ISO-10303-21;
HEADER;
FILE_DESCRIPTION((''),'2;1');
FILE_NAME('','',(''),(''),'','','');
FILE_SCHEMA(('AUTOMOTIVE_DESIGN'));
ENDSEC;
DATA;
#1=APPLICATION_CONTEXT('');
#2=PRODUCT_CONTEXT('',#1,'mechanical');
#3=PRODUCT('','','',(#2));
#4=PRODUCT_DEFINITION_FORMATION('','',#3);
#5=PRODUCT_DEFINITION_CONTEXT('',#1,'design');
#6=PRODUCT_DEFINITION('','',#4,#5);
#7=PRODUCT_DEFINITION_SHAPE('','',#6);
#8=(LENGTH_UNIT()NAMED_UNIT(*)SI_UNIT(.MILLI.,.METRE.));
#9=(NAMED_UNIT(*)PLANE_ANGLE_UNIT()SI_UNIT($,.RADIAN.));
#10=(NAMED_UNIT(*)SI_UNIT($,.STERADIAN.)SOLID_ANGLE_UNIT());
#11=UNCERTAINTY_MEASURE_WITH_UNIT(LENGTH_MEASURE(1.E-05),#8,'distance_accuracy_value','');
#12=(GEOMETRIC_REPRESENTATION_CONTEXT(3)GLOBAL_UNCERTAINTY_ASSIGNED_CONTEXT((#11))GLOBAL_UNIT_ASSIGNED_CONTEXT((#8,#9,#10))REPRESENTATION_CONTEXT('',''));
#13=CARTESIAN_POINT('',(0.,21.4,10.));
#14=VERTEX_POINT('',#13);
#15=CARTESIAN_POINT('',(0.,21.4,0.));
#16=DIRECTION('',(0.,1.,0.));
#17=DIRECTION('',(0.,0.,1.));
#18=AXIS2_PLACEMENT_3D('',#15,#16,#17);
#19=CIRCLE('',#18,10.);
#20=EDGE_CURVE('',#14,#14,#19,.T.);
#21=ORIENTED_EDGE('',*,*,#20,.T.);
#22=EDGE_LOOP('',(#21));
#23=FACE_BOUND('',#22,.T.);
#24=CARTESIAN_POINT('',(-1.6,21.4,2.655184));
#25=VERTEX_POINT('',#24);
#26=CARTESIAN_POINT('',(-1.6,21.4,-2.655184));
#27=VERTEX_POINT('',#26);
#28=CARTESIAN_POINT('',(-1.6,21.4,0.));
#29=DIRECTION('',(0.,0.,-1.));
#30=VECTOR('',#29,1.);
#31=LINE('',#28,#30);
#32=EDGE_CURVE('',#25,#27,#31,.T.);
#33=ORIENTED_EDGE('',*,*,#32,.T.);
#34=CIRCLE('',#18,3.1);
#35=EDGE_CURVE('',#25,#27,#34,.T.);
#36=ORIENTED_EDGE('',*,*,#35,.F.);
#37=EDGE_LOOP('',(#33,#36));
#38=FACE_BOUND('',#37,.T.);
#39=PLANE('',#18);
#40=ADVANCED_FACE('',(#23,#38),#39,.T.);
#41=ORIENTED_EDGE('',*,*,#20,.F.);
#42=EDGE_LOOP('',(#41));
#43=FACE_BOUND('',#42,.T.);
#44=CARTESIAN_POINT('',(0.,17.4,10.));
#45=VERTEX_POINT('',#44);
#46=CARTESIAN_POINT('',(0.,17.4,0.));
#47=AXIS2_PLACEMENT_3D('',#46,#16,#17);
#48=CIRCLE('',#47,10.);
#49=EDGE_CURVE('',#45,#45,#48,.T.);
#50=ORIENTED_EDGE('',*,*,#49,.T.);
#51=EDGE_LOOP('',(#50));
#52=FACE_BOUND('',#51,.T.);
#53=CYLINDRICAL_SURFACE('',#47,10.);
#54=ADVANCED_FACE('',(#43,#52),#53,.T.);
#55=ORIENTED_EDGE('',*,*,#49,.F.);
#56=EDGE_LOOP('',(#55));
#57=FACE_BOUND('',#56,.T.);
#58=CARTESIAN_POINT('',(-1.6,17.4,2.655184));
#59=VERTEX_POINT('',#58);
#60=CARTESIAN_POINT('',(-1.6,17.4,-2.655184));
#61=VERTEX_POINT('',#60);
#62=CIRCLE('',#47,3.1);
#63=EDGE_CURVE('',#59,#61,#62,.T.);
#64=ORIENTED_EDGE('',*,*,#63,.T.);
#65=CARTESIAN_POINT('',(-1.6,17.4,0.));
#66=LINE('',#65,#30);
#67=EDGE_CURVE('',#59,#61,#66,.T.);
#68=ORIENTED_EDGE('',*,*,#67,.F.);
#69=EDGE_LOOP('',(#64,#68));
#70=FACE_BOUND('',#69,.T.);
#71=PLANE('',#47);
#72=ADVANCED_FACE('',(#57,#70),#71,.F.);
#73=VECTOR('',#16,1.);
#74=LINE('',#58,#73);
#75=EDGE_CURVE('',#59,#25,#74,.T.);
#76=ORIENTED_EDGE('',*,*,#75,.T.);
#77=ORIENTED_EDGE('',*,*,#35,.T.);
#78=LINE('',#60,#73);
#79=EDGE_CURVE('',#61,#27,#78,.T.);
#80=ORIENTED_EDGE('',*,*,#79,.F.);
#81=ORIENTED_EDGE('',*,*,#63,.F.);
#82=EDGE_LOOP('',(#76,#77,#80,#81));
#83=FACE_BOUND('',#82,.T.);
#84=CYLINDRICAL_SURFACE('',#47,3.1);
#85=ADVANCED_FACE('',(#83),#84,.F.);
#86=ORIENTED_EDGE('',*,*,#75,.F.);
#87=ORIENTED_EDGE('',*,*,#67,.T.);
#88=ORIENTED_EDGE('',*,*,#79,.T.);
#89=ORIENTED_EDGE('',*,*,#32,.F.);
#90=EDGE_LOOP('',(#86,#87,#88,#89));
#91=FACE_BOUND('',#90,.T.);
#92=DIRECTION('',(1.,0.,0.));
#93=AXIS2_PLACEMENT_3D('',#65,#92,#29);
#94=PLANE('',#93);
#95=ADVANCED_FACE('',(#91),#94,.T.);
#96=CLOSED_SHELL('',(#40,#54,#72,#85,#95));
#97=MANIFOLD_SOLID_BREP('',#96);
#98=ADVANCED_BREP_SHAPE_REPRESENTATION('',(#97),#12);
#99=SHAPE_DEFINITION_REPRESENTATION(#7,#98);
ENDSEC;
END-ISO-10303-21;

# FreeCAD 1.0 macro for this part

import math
import FreeCAD as App
import Part
import Sketcher
from FreeCAD import Vector
Q = App.Units.Quantity

doc = App.newDocument("Part")
body = doc.addObject("PartDesign::Body", "Body")

sketch1 = body.newObject("Sketcher::SketchObject", "Sketch")
sketch1.AttachmentSupport = (doc.getObject("XZ_Plane"), [""])
sketch1.MapMode = "FlatFace"
sketch1.AttachmentOffset = App.Placement(Vector(0, 0, -17.4), App.Rotation())
sketch1.addGeometry(Part.Circle(Vector(0, 0, 0), Vector(0, 0, 1), 10), False)
sketch1.addGeometry(Part.ArcOfCircle(Part.Circle(Vector(0, 0, 0), Vector(0, 0, 1), 3.1), math.radians(90), math.radians(121.072951)), False)
sketch1.addGeometry(Part.LineSegment(Vector(-1.6, 2.655184, 0), Vector(-1.6, -2.655184, 0)), False)
sketch1.addGeometry(Part.ArcOfCircle(Part.Circle(Vector(0, 0, 0), Vector(0, 0, 1), 3.1), math.radians(-121.072951), math.radians(-90)), False)
sketch1.addGeometry(Part.ArcOfCircle(Part.Circle(Vector(0, 0, 0), Vector(0, 0, 1), 3.1), math.radians(-90), math.radians(90)), False)
sketch1.addConstraint(Sketcher.Constraint("Coincident", 1, 2, 2, 1))
sketch1.addConstraint(Sketcher.Constraint("Coincident", 2, 2, 3, 1))
sketch1.addConstraint(Sketcher.Constraint("Tangent", 3, 2, 4, 1))
sketch1.addConstraint(Sketcher.Constraint("Tangent", 4, 2, 1, 1))
sketch1.addConstraint(Sketcher.Constraint("Vertical", 2))
sketch1.addConstraint(Sketcher.Constraint("Coincident", 0, 3, -1, 1))
sketch1.addConstraint(Sketcher.Constraint("Coincident", 1, 3, -1, 1))
sketch1.addConstraint(Sketcher.Constraint("Equal", 1, 3))
sketch1.addConstraint(Sketcher.Constraint("Equal", 3, 4))
sketch1.addConstraint(Sketcher.Constraint("PointOnObject", 3, 2, -2))
sketch1.addConstraint(Sketcher.Constraint("PointOnObject", 4, 2, -2))
sketch1.addConstraint(Sketcher.Constraint("Diameter", 0, Q("20 mm")))
sketch1.addConstraint(Sketcher.Constraint("Radius", 1, Q("3.1 mm")))
sketch1.addConstraint(Sketcher.Constraint("DistanceX", 1, 2, -1, 1, Q("1.6 mm")))
pad1 = body.newObject("PartDesign::Pad", "Pad")
pad1.Profile = sketch1
pad1.Length = 4
pad1.Reversed = True

doc.recompute()
